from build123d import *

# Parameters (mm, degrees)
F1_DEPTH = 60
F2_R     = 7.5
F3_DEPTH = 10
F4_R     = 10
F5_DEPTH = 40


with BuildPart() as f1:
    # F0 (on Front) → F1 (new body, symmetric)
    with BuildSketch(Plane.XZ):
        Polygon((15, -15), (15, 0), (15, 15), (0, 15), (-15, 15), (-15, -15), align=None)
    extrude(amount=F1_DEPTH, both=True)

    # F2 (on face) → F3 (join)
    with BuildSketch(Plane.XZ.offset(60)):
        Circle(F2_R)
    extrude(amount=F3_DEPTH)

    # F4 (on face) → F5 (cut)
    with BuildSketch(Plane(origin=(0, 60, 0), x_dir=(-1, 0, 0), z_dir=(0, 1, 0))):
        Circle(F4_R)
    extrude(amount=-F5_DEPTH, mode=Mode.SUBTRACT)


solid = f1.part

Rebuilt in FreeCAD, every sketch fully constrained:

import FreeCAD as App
import Part
import Sketcher

V = App.Vector
Q = App.Units.Quantity


def add_polygon(sketch, points):
    """Adds a closed chain of lines whose ends are joined by coincident constraints."""
    first, n = sketch.GeometryCount, len(points)
    for a, b in zip(points, points[1:] + points[:1]):
        sketch.addGeometry(Part.LineSegment(App.Vector(*a, 0), App.Vector(*b, 0)), False)
    for i in range(n):
        sketch.addConstraint(Sketcher.Constraint("Coincident", first + i, 2, first + (i + 1) % n, 1))

doc = App.newDocument("Part")
params = doc.addObject("Spreadsheet::Sheet", "Params")
for row, (alias, value) in enumerate([
    ("sketch1_width", "30 mm"),
    ("pad1_length", "120 mm"),
    ("sketch2_diameter", "15 mm"),
    ("pad2_length", "10 mm"),
    ("sketch3_diameter", "20 mm"),
    ("pocket1_length", "40 mm"),
], start=1):
    params.set(f"A{row}", alias)
    params.set(f"B{row}", "=" + value)
    params.setAlias(f"B{row}", alias)

body = doc.addObject("PartDesign::Body", "Body")

sketch1 = doc.addObject("Sketcher::SketchObject", "Sketch")
body.addObject(sketch1)
sketch1.AttachmentSupport = (doc.XZ_Plane, [""])
sketch1.MapMode = "FlatFace"
add_polygon(sketch1, [(15, -15), (15, 15), (-15, 15), (-15, -15)])
sketch1.addConstraint([
    Sketcher.Constraint("Vertical", 0),
    Sketcher.Constraint("Horizontal", 1),
    Sketcher.Constraint("Vertical", 2),
    Sketcher.Constraint("Horizontal", 3),
    Sketcher.Constraint("Symmetric", 0, 2, 2, 2, -1, 1),
    Sketcher.Constraint("Equal", 3, 0),
    Sketcher.Constraint("DistanceX", 1, 2, 1, 1, Q("30 mm")),
])
sketch1.setExpression("Constraints[10]", "Params.sketch1_width")
pad1 = doc.addObject("PartDesign::Pad", "Pad")
body.addObject(pad1)
pad1.Profile = sketch1
pad1.setExpression("Length", "Params.pad1_length")
pad1.Midplane = True

sketch2 = doc.addObject("Sketcher::SketchObject", "Sketch001")
body.addObject(sketch2)
sketch2.AttachmentSupport = (doc.XZ_Plane, [""])
sketch2.MapMode = "FlatFace"
sketch2.AttachmentOffset = App.Placement(V(0, 0, 60), App.Rotation())
sketch2.addGeometry(Part.Circle(V(0, 0, 0), V(0, 0, 1), 8), False)
sketch2.addConstraint([
    Sketcher.Constraint("Coincident", 0, 3, -1, 1),
    Sketcher.Constraint("Diameter", 0, Q("15 mm")),
])
sketch2.setExpression("Constraints[1]", "Params.sketch2_diameter")
pad2 = doc.addObject("PartDesign::Pad", "Pad001")
body.addObject(pad2)
pad2.Profile = sketch2
pad2.setExpression("Length", "Params.pad2_length")

sketch3 = doc.addObject("Sketcher::SketchObject", "Sketch002")
body.addObject(sketch3)
sketch3.AttachmentSupport = (doc.XZ_Plane, [""])
sketch3.MapMode = "FlatFace"
sketch3.AttachmentOffset = App.Placement(V(0, 0, -60), App.Rotation())
sketch3.addGeometry(Part.Circle(V(0, 0, 0), V(0, 0, 1), 10), False)
sketch3.addConstraint([
    Sketcher.Constraint("Coincident", 0, 3, -1, 1),
    Sketcher.Constraint("Diameter", 0, Q("20 mm")),
])
sketch3.setExpression("Constraints[1]", "Params.sketch3_diameter")
pocket1 = doc.addObject("PartDesign::Pocket", "Pocket")
body.addObject(pocket1)
pocket1.Profile = sketch3
pocket1.setExpression("Length", "Params.pocket1_length")
pocket1.Reversed = True

doc.recompute()
